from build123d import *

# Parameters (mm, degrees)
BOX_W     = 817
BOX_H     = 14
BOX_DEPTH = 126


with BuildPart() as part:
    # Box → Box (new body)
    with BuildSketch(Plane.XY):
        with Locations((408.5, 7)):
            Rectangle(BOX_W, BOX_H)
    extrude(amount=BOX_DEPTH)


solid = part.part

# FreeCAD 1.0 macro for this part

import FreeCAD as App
import Part
import Sketcher

doc = App.newDocument("Part")
params = doc.addObject("Spreadsheet::Sheet", "Params")
for row, (alias, value) in enumerate([
    ("sketch1_width", "817 mm"),
    ("sketch1_height", "14 mm"),
    ("pad1_length", "126 mm"),
], start=1):
    params.set(f"A{row}", alias)
    params.set(f"B{row}", "=" + value)
    params.setAlias(f"B{row}", alias)

body = doc.addObject("PartDesign::Body", "Body")

sketch1 = body.newObject("Sketcher::SketchObject", "Sketch")
sketch1.AttachmentSupport = (doc.getObject("XY_Plane"), [""])
sketch1.MapMode = "FlatFace"
sketch1.addGeometry(Part.LineSegment(App.Vector(0, 14, 0), App.Vector(0, 0, 0)), False)
sketch1.addGeometry(Part.LineSegment(App.Vector(0, 0, 0), App.Vector(817, 0, 0)), False)
sketch1.addGeometry(Part.LineSegment(App.Vector(817, 0, 0), App.Vector(817, 14, 0)), False)
sketch1.addGeometry(Part.LineSegment(App.Vector(817, 14, 0), App.Vector(0, 14, 0)), False)
sketch1.addConstraint(Sketcher.Constraint("Coincident", 0, 2, 1, 1))
sketch1.addConstraint(Sketcher.Constraint("Coincident", 1, 2, 2, 1))
sketch1.addConstraint(Sketcher.Constraint("Coincident", 2, 2, 3, 1))
sketch1.addConstraint(Sketcher.Constraint("Coincident", 3, 2, 0, 1))
sketch1.addConstraint(Sketcher.Constraint("Vertical", 0))
sketch1.addConstraint(Sketcher.Constraint("Horizontal", 1))
sketch1.addConstraint(Sketcher.Constraint("Vertical", 2))
sketch1.addConstraint(Sketcher.Constraint("Horizontal", 3))
sketch1.addConstraint(Sketcher.Constraint("Coincident", 0, 2, -1, 1))
sketch1.addConstraint(Sketcher.Constraint("DistanceX", 1, 1, 1, 2, 817.0))
sketch1.addConstraint(Sketcher.Constraint("DistanceY", 0, 2, 0, 1, 14.0))
sketch1.setExpression("Constraints[9]", "Params.sketch1_width")
sketch1.setExpression("Constraints[10]", "Params.sketch1_height")
pad1 = body.newObject("PartDesign::Pad", "Pad")
pad1.Profile = sketch1
pad1.setExpression("Length", "Params.pad1_length")

doc.recompute()
